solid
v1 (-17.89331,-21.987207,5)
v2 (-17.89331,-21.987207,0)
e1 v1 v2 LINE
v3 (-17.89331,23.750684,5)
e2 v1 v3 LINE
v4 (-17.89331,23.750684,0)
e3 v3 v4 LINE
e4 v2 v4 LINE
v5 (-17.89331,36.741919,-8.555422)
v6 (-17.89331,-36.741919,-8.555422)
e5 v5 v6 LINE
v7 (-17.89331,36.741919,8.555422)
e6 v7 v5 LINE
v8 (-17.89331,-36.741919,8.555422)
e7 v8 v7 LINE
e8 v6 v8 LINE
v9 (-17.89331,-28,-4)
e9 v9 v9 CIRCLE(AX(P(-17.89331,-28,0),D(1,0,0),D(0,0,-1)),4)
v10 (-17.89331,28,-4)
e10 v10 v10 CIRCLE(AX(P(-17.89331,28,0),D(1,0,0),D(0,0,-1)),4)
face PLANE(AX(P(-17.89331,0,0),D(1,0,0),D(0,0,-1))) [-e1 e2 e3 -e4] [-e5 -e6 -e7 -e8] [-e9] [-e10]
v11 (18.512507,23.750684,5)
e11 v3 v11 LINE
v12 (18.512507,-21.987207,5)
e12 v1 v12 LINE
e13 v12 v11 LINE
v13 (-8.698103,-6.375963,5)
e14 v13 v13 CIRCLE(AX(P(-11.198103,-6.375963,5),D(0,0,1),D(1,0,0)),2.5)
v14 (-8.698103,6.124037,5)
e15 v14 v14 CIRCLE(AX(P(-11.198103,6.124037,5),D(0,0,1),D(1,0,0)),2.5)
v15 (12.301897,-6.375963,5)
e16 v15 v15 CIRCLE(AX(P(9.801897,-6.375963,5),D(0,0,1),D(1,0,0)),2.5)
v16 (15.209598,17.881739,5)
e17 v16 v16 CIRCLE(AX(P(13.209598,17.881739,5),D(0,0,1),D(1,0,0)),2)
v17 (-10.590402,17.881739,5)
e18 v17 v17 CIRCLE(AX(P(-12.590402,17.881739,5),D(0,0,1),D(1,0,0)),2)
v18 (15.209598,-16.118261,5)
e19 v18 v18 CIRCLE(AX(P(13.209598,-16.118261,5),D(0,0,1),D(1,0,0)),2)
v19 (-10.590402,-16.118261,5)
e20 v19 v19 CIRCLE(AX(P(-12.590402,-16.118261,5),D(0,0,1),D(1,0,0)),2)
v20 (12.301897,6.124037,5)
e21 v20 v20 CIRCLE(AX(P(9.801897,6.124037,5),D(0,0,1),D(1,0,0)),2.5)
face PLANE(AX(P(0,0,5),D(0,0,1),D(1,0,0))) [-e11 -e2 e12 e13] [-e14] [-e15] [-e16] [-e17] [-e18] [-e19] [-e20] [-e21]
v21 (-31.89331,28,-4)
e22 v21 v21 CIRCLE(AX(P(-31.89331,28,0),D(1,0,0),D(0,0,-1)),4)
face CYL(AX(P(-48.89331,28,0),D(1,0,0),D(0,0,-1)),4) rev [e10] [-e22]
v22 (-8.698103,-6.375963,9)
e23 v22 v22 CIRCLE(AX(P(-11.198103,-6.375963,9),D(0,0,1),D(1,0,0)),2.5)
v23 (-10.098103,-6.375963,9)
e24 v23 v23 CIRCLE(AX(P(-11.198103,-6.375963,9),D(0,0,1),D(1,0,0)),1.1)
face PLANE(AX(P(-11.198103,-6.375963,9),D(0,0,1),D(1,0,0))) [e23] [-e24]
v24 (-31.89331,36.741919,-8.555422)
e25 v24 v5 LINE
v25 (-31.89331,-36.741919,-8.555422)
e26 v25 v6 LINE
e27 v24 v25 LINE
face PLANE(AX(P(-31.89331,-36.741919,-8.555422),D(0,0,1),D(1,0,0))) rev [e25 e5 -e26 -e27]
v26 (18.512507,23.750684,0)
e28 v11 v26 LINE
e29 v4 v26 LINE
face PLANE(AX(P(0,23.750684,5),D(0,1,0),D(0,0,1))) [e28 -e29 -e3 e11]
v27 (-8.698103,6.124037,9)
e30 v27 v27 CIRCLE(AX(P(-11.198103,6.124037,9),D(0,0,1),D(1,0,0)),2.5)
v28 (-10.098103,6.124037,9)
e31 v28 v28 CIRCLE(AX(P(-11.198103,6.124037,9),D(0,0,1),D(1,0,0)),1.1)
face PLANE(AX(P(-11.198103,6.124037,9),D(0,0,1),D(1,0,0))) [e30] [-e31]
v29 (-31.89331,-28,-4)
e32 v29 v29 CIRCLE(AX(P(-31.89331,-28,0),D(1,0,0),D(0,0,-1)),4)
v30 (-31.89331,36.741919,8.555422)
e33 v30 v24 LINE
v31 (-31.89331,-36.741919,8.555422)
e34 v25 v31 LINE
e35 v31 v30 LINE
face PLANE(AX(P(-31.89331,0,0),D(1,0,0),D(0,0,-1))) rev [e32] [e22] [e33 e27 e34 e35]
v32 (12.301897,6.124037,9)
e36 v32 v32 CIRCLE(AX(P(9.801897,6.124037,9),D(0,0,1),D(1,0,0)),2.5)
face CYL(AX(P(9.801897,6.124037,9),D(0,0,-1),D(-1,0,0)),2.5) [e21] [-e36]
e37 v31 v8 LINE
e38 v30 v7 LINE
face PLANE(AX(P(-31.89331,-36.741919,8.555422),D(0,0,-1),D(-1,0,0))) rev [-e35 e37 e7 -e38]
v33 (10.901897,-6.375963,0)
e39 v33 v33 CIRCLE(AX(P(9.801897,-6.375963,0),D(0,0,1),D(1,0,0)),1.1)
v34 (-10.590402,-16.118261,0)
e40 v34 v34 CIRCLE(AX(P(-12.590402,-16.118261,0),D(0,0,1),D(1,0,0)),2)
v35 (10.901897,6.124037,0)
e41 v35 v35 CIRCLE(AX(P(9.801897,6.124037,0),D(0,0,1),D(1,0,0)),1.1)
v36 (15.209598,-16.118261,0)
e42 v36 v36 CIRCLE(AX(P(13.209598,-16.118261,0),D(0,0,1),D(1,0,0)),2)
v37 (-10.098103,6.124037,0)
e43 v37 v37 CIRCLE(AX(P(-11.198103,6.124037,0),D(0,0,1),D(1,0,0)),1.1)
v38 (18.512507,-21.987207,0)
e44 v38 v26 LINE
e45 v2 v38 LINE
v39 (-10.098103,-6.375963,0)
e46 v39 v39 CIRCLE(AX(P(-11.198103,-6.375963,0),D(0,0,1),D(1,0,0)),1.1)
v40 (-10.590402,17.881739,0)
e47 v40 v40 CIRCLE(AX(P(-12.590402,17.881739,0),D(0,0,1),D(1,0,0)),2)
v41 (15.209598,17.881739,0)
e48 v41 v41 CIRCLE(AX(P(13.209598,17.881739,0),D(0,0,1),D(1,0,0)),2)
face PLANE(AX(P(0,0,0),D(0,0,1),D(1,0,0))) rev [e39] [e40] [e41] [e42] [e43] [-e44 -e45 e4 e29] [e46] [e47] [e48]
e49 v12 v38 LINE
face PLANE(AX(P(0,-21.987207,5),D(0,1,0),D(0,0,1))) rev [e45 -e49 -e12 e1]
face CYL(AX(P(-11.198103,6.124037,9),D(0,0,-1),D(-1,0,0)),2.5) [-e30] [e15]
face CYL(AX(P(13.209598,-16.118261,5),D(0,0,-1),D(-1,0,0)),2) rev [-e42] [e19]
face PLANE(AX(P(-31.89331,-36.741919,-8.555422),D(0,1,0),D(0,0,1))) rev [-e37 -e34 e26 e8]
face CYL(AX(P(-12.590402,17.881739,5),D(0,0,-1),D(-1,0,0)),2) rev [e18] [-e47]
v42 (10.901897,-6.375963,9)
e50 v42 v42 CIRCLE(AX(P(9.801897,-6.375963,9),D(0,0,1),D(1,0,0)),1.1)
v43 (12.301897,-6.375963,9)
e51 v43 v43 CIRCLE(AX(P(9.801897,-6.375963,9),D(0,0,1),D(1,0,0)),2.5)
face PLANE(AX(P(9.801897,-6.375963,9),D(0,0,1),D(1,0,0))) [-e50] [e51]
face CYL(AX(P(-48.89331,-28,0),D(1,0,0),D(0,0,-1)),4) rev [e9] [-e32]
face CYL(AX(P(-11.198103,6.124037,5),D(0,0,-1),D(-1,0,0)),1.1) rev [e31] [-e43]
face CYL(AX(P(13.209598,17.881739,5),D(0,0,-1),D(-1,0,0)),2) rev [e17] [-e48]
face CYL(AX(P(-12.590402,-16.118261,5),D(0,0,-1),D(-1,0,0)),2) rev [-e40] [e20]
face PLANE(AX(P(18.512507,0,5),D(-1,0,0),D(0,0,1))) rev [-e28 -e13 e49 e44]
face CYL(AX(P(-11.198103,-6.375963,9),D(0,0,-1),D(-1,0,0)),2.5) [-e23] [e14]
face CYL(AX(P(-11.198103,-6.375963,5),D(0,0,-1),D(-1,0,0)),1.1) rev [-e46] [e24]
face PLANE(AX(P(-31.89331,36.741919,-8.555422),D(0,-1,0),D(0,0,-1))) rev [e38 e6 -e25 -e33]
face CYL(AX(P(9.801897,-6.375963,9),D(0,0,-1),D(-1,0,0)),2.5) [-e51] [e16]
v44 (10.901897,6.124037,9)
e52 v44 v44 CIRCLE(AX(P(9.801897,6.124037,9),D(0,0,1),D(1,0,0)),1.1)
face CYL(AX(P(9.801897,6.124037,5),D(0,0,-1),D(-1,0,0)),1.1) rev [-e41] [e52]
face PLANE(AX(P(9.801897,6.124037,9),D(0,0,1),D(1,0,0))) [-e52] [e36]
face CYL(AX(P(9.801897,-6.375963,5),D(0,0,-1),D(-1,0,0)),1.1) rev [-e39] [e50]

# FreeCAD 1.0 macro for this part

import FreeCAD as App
import Part
import Sketcher
Q = App.Units.Quantity


def add_polygon(sketch, points):
    """Adds a closed chain of lines whose ends are joined by coincident constraints."""
    first, n = sketch.GeometryCount, len(points)
    for a, b in zip(points, points[1:] + points[:1]):
        sketch.addGeometry(Part.LineSegment(App.Vector(*a, 0), App.Vector(*b, 0)), False)
    for i in range(n):
        sketch.addConstraint(Sketcher.Constraint("Coincident", first + i, 2, first + (i + 1) % n, 1))

doc = App.newDocument("Part")
body = doc.addObject("PartDesign::Body", "Body")

sketch1 = body.newObject("Sketcher::SketchObject", "Sketch")
sketch1.AttachmentSupport = (doc.getObject("XY_Plane"), [""])
sketch1.MapMode = "FlatFace"
add_polygon(sketch1, [(-17.9, 23.8), (-17.9, -22), (18.5, -22), (18.5, 23.8)])
sketch1.addGeometry(Part.Circle(App.Vector(-12.6, -16.1, 0), App.Vector(0, 0, 1), 2), False)
sketch1.addGeometry(Part.Circle(App.Vector(13.2, -16.1, 0), App.Vector(0, 0, 1), 2), False)
sketch1.addGeometry(Part.Circle(App.Vector(-12.6, 17.9, 0), App.Vector(0, 0, 1), 2), False)
sketch1.addGeometry(Part.Circle(App.Vector(13.2, 17.9, 0), App.Vector(0, 0, 1), 2), False)
sketch1.addGeometry(Part.Circle(App.Vector(-11.2, -6.4, 0), App.Vector(0, 0, 1), 1.1), False)
sketch1.addGeometry(Part.Circle(App.Vector(9.8, -6.4, 0), App.Vector(0, 0, 1), 1.1), False)
sketch1.addGeometry(Part.Circle(App.Vector(-11.2, 6.1, 0), App.Vector(0, 0, 1), 1.1), False)
sketch1.addGeometry(Part.Circle(App.Vector(9.8, 6.1, 0), App.Vector(0, 0, 1), 1.1), False)
sketch1.addConstraint(Sketcher.Constraint("Vertical", 0))
sketch1.addConstraint(Sketcher.Constraint("Horizontal", 1))
sketch1.addConstraint(Sketcher.Constraint("Vertical", 2))
sketch1.addConstraint(Sketcher.Constraint("Horizontal", 3))
sketch1.addConstraint(Sketcher.Constraint("Equal", 4, 5))
sketch1.addConstraint(Sketcher.Constraint("Equal", 5, 6))
sketch1.addConstraint(Sketcher.Constraint("Equal", 6, 7))
sketch1.addConstraint(Sketcher.Constraint("Equal", 8, 9))
sketch1.addConstraint(Sketcher.Constraint("Equal", 9, 10))
sketch1.addConstraint(Sketcher.Constraint("Equal", 10, 11))
sketch1.addConstraint(Sketcher.Constraint("Horizontal", 4, 3, 5, 3))
sketch1.addConstraint(Sketcher.Constraint("Horizontal", 6, 3, 7, 3))
sketch1.addConstraint(Sketcher.Constraint("Horizontal", 8, 3, 9, 3))
sketch1.addConstraint(Sketcher.Constraint("Horizontal", 10, 3, 11, 3))
sketch1.addConstraint(Sketcher.Constraint("Vertical", 4, 3, 6, 3))
sketch1.addConstraint(Sketcher.Constraint("Vertical", 5, 3, 7, 3))
sketch1.addConstraint(Sketcher.Constraint("Vertical", 8, 3, 10, 3))
sketch1.addConstraint(Sketcher.Constraint("Vertical", 9, 3, 11, 3))
sketch1.addConstraint(Sketcher.Constraint("Diameter", 4, Q("4 mm")))
sketch1.addConstraint(Sketcher.Constraint("Diameter", 8, Q("2.2 mm")))
sketch1.addConstraint(Sketcher.Constraint("DistanceY", 4, 3, 6, 3, Q("34 mm")))
sketch1.addConstraint(Sketcher.Constraint("DistanceX", 8, 3, 9, 3, Q("21 mm")))
sketch1.addConstraint(Sketcher.Constraint("DistanceX", 4, 3, 5, 3, Q("25.8 mm")))
sketch1.addConstraint(Sketcher.Constraint("DistanceY", 8, 3, 10, 3, Q("12.5 mm")))
sketch1.addConstraint(Sketcher.Constraint("DistanceY", 0, 2, 0, 1, Q("45.737891 mm")))
sketch1.addConstraint(Sketcher.Constraint("DistanceX", 4, 3, -1, 1, Q("12.590402 mm")))
sketch1.addConstraint(Sketcher.Constraint("DistanceX", 4, 3, 8, 3, Q("1.392299 mm")))
sketch1.addConstraint(Sketcher.Constraint("DistanceY", 4, 3, 8, 3, Q("9.742299 mm")))
sketch1.addConstraint(Sketcher.Constraint("DistanceX", 1, 1, 1, 2, Q("36.405816 mm")))
sketch1.addConstraint(Sketcher.Constraint("DistanceY", 4, 3, -1, 1, Q("16.118261 mm")))
sketch1.addConstraint(Sketcher.Constraint("DistanceX", 0, 2, -1, 1, Q("17.89331 mm")))
sketch1.addConstraint(Sketcher.Constraint("DistanceY", 0, 2, -1, 1, Q("21.987207 mm")))
pad1 = body.newObject("PartDesign::Pad", "Pad")
pad1.Profile = sketch1
pad1.Length = 5

sketch2 = body.newObject("Sketcher::SketchObject", "Sketch001")
sketch2.AttachmentSupport = (doc.getObject("XY_Plane"), [""])
sketch2.MapMode = "FlatFace"
sketch2.AttachmentOffset = App.Placement(App.Vector(0, 0, 5), App.Rotation())
sketch2.addGeometry(Part.Circle(App.Vector(-11.2, 6.1, 0), App.Vector(0, 0, 1), 2.5), False)
sketch2.addGeometry(Part.Circle(App.Vector(-11.2, -6.4, 0), App.Vector(0, 0, 1), 2.5), False)
sketch2.addGeometry(Part.Circle(App.Vector(9.8, -6.4, 0), App.Vector(0, 0, 1), 2.5), False)
sketch2.addGeometry(Part.Circle(App.Vector(9.8, 6.1, 0), App.Vector(0, 0, 1), 2.5), False)
sketch2.addConstraint(Sketcher.Constraint("Equal", 0, 1))
sketch2.addConstraint(Sketcher.Constraint("Equal", 1, 2))
sketch2.addConstraint(Sketcher.Constraint("Equal", 2, 3))
sketch2.addConstraint(Sketcher.Constraint("Horizontal", 1, 3, 2, 3))
sketch2.addConstraint(Sketcher.Constraint("Horizontal", 0, 3, 3, 3))
sketch2.addConstraint(Sketcher.Constraint("Vertical", 0, 3, 1, 3))
sketch2.addConstraint(Sketcher.Constraint("Vertical", 2, 3, 3, 3))
sketch2.addConstraint(Sketcher.Constraint("Diameter", 0, Q("5 mm")))
sketch2.addConstraint(Sketcher.Constraint("DistanceX", 1, 3, 2, 3, Q("21 mm")))
sketch2.addConstraint(Sketcher.Constraint("DistanceY", 1, 3, 0, 3, Q("12.5 mm")))
sketch2.addConstraint(Sketcher.Constraint("DistanceX", 0, 3, -1, 1, Q("11.198103 mm")))
sketch2.addConstraint(Sketcher.Constraint("DistanceY", -1, 1, 0, 3, Q("6.124037 mm")))
pad2 = body.newObject("PartDesign::Pad", "Pad001")
pad2.Profile = sketch2
pad2.Length = 4

sketch3 = body.newObject("Sketcher::SketchObject", "Sketch002")
sketch3.AttachmentSupport = (doc.getObject("XY_Plane"), [""])
sketch3.MapMode = "FlatFace"
sketch3.AttachmentOffset = App.Placement(App.Vector(0, 0, 5), App.Rotation())
sketch3.addGeometry(Part.Circle(App.Vector(-11.2, 6.1, 0), App.Vector(0, 0, 1), 1.1), False)
sketch3.addGeometry(Part.Circle(App.Vector(-11.2, -6.4, 0), App.Vector(0, 0, 1), 1.1), False)
sketch3.addGeometry(Part.Circle(App.Vector(9.8, -6.4, 0), App.Vector(0, 0, 1), 1.1), False)
sketch3.addGeometry(Part.Circle(App.Vector(9.8, 6.1, 0), App.Vector(0, 0, 1), 1.1), False)
sketch3.addConstraint(Sketcher.Constraint("Equal", 0, 1))
sketch3.addConstraint(Sketcher.Constraint("Equal", 1, 2))
sketch3.addConstraint(Sketcher.Constraint("Equal", 2, 3))
sketch3.addConstraint(Sketcher.Constraint("Horizontal", 1, 3, 2, 3))
sketch3.addConstraint(Sketcher.Constraint("Horizontal", 0, 3, 3, 3))
sketch3.addConstraint(Sketcher.Constraint("Vertical", 0, 3, 1, 3))
sketch3.addConstraint(Sketcher.Constraint("Vertical", 2, 3, 3, 3))
sketch3.addConstraint(Sketcher.Constraint("Diameter", 0, Q("2.2 mm")))
sketch3.addConstraint(Sketcher.Constraint("DistanceX", 1, 3, 2, 3, Q("21 mm")))
sketch3.addConstraint(Sketcher.Constraint("DistanceY", 1, 3, 0, 3, Q("12.5 mm")))
sketch3.addConstraint(Sketcher.Constraint("DistanceX", 0, 3, -1, 1, Q("11.198103 mm")))
sketch3.addConstraint(Sketcher.Constraint("DistanceY", -1, 1, 0, 3, Q("6.124037 mm")))
pocket1 = body.newObject("PartDesign::Pocket", "Pocket")
pocket1.Profile = sketch3
pocket1.Length = 34
pocket1.Midplane = True

sketch4 = body.newObject("Sketcher::SketchObject", "Sketch003")
sketch4.AttachmentSupport = (doc.getObject("YZ_Plane"), [""])
sketch4.MapMode = "FlatFace"
sketch4.AttachmentOffset = App.Placement(App.Vector(0, 0, -17.89331), App.Rotation())
add_polygon(sketch4, [(37, -9), (-37, -9), (-37, 9), (37, 9)])
sketch4.addConstraint(Sketcher.Constraint("Horizontal", 0))
sketch4.addConstraint(Sketcher.Constraint("Vertical", 1))
sketch4.addConstraint(Sketcher.Constraint("Horizontal", 2))
sketch4.addConstraint(Sketcher.Constraint("Vertical", 3))
sketch4.addConstraint(Sketcher.Constraint("Symmetric", 0, 2, 2, 2, -1, 1))
sketch4.addConstraint(Sketcher.Constraint("DistanceX", 0, 2, 0, 1, Q("73.483837 mm")))
sketch4.addConstraint(Sketcher.Constraint("DistanceY", 1, 1, 1, 2, Q("17.110845 mm")))
pad3 = body.newObject("PartDesign::Pad", "Pad002")
pad3.Profile = sketch4
pad3.Length = 14
pad3.Reversed = True

sketch5 = body.newObject("Sketcher::SketchObject", "Sketch004")
sketch5.AttachmentSupport = (doc.getObject("YZ_Plane"), [""])
sketch5.MapMode = "FlatFace"
sketch5.AttachmentOffset = App.Placement(App.Vector(0, 0, -17.89331), App.Rotation())
sketch5.addGeometry(Part.Circle(App.Vector(28, 0, 0), App.Vector(0, 0, 1), 4), False)
sketch5.addGeometry(Part.Circle(App.Vector(-28, 0, 0), App.Vector(0, 0, 1), 4), False)
sketch5.addConstraint(Sketcher.Constraint("Equal", 0, 1))
sketch5.addConstraint(Sketcher.Constraint("Symmetric", 0, 3, 1, 3, -1, 1))
sketch5.addConstraint(Sketcher.Constraint("PointOnObject", 0, 3, -1))
sketch5.addConstraint(Sketcher.Constraint("Diameter", 0, Q("8 mm")))
sketch5.addConstraint(Sketcher.Constraint("DistanceX", -1, 1, 0, 3, Q("28 mm")))
pocket2 = body.newObject("PartDesign::Pocket", "Pocket001")
pocket2.Profile = sketch5
pocket2.Length = 62
pocket2.Midplane = True

doc.recompute()
